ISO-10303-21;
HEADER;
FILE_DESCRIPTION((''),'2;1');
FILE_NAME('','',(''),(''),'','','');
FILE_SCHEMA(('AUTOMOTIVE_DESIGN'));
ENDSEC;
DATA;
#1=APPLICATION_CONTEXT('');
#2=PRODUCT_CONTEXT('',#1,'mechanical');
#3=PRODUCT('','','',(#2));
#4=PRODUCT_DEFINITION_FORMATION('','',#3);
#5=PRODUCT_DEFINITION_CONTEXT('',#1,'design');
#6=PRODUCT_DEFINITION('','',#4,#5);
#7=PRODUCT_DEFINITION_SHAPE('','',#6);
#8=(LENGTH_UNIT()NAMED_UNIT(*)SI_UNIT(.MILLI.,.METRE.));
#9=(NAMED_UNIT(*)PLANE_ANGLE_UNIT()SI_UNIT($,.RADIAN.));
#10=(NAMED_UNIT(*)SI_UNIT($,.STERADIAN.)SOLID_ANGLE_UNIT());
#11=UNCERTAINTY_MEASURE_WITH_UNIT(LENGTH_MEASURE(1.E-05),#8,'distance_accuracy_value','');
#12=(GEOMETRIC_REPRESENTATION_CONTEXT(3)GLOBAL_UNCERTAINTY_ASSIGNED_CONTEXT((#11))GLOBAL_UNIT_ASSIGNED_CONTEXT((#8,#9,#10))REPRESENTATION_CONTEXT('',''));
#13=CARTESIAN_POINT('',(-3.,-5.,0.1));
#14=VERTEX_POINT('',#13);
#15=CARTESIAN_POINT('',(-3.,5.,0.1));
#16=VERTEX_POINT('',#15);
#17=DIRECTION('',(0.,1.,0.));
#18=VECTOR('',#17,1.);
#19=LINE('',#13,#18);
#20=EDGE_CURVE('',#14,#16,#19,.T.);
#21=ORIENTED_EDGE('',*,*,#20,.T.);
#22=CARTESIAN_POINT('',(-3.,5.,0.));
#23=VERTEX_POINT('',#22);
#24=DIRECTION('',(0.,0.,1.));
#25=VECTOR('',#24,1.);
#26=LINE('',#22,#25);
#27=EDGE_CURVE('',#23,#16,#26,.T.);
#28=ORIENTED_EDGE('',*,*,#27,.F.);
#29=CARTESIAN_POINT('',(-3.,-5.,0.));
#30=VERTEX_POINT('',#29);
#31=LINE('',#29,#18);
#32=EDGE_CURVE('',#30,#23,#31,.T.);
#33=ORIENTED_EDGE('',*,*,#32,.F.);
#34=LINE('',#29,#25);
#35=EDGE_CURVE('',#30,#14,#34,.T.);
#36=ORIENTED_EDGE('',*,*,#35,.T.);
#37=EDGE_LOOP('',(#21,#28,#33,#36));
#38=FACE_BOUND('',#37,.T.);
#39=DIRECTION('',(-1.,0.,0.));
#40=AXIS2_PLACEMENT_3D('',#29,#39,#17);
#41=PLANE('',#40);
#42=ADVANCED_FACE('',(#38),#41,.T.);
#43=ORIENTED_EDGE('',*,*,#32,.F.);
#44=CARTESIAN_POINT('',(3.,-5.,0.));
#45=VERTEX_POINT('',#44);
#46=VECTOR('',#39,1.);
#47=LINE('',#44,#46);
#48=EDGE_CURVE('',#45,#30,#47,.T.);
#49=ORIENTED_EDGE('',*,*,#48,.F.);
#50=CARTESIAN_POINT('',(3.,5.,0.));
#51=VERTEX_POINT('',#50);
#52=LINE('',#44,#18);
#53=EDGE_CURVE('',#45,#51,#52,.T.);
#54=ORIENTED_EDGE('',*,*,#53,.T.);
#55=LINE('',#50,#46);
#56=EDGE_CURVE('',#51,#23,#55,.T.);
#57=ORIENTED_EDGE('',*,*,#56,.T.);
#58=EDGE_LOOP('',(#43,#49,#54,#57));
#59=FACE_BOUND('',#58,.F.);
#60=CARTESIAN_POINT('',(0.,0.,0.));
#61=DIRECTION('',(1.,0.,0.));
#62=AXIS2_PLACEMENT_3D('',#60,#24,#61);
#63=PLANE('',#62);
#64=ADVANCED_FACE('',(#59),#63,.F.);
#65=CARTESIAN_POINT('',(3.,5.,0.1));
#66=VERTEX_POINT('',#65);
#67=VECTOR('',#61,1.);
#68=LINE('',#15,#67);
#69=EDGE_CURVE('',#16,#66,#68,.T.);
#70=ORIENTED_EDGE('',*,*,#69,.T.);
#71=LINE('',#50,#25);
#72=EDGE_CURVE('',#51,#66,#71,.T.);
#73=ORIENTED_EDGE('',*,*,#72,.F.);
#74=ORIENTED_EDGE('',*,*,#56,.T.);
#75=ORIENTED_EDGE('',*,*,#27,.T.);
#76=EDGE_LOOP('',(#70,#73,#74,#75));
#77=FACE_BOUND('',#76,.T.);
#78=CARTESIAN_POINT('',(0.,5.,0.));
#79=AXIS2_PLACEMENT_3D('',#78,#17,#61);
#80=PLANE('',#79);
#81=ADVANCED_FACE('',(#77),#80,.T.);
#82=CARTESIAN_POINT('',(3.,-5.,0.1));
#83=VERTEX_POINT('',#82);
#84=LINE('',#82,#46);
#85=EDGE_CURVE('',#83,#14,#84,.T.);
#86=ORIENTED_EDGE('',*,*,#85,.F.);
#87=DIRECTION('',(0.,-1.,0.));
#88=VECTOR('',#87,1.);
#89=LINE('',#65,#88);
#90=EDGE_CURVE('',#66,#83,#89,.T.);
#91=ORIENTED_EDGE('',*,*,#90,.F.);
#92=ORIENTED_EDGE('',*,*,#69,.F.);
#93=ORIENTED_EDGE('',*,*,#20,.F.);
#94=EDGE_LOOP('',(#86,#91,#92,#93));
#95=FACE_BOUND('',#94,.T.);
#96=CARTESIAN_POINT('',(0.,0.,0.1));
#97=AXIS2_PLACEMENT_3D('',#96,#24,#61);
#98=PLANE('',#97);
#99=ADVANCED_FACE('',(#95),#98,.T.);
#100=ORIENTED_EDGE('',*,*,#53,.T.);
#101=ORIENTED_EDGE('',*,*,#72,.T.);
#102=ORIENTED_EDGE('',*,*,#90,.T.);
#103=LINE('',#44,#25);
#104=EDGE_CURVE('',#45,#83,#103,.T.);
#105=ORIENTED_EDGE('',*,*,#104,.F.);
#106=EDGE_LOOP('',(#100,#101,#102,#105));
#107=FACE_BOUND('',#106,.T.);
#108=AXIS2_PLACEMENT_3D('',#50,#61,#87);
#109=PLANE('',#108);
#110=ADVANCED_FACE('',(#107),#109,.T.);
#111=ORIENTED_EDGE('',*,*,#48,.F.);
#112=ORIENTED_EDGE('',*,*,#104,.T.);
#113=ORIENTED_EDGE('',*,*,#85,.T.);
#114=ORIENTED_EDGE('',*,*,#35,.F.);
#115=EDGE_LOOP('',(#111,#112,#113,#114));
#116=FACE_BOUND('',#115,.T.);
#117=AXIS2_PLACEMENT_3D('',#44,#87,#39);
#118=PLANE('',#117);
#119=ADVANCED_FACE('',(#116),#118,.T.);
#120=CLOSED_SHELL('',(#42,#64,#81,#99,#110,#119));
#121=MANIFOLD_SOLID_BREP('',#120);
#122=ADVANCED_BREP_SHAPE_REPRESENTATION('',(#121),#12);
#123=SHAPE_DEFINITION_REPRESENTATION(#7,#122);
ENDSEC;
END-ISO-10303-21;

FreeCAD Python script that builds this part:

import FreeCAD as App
import Part
import Sketcher

doc = App.newDocument("Part")
body = doc.addObject("PartDesign::Body", "Body")

sketch1 = body.newObject("Sketcher::SketchObject", "Sketch")
sketch1.AttachmentSupport = (doc.getObject("XY_Plane"), [""])
sketch1.MapMode = "FlatFace"
sketch1.addGeometry(Part.LineSegment(App.Vector(3, 5, 0), App.Vector(-3, 5, 0)), False)
sketch1.addGeometry(Part.LineSegment(App.Vector(-3, 5, 0), App.Vector(-3, -5, 0)), False)
sketch1.addGeometry(Part.LineSegment(App.Vector(-3, -5, 0), App.Vector(3, -5, 0)), False)
sketch1.addGeometry(Part.LineSegment(App.Vector(3, -5, 0), App.Vector(3, 5, 0)), False)
sketch1.addConstraint(Sketcher.Constraint("Coincident", 0, 2, 1, 1))
sketch1.addConstraint(Sketcher.Constraint("Coincident", 1, 2, 2, 1))
sketch1.addConstraint(Sketcher.Constraint("Coincident", 2, 2, 3, 1))
sketch1.addConstraint(Sketcher.Constraint("Coincident", 3, 2, 0, 1))
sketch1.addConstraint(Sketcher.Constraint("Horizontal", 0))
sketch1.addConstraint(Sketcher.Constraint("Vertical", 1))
sketch1.addConstraint(Sketcher.Constraint("Horizontal", 2))
sketch1.addConstraint(Sketcher.Constraint("Vertical", 3))
sketch1.addConstraint(Sketcher.Constraint("Symmetric", 0, 2, 2, 2, -1, 1))
sketch1.addConstraint(Sketcher.Constraint("DistanceX", 0, 2, 0, 1, 6.0))
sketch1.addConstraint(Sketcher.Constraint("DistanceY", 1, 2, 1, 1, 10.0))
pad1 = body.newObject("PartDesign::Pad", "Pad")
pad1.Profile = sketch1
pad1.Length = 0.1

doc.recompute()
